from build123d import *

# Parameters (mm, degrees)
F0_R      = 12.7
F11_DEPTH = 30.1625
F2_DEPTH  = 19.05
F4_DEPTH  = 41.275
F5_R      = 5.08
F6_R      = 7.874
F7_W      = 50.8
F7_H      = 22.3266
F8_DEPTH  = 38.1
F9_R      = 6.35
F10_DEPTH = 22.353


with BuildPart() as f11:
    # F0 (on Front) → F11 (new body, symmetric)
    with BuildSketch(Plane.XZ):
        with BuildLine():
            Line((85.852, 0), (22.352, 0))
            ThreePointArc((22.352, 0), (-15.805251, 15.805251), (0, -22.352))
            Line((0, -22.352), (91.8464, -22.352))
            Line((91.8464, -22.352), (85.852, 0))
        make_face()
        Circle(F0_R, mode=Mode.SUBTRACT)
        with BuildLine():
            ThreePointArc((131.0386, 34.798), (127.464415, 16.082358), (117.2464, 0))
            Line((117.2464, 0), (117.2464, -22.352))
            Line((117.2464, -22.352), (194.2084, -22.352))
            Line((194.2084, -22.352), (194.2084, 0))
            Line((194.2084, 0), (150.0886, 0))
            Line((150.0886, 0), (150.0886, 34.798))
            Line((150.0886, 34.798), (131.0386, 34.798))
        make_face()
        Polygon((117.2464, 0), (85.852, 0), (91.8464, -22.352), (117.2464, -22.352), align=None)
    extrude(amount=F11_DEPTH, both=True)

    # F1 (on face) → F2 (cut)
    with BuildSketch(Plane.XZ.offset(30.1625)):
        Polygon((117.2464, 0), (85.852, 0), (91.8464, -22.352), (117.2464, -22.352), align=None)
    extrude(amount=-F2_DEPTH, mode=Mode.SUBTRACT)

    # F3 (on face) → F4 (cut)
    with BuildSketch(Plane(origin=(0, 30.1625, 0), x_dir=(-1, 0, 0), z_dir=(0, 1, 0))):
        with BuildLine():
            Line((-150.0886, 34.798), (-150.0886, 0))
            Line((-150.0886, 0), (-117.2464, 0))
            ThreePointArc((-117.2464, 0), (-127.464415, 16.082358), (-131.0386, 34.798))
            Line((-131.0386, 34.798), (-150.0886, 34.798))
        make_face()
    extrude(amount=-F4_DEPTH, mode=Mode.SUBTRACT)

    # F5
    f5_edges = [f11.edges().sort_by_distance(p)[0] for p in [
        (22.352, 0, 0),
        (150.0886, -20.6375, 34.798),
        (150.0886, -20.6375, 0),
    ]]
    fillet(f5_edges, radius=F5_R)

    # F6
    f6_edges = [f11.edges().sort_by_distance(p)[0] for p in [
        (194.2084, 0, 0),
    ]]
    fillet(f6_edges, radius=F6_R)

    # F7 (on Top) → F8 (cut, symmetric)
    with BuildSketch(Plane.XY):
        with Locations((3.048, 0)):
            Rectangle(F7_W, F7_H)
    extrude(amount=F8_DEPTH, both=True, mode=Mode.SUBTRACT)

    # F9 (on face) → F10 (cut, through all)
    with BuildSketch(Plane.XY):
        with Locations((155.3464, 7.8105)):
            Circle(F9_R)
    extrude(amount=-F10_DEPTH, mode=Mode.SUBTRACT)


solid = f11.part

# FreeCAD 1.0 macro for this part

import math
import FreeCAD as App
import Part
import Sketcher
Q = App.Units.Quantity


def edges_at(feature, points):
    """Names of the edges that pass closest to the given points."""
    edges = feature.Shape.Edges
    near = lambda p: min(range(len(edges)), key=lambda i: edges[i].distToShape(Part.Vertex(*p))[0])
    return sorted({f"Edge{near(p) + 1}" for p in points})


def add_polygon(sketch, points):
    """Adds a closed chain of lines whose ends are joined by coincident constraints."""
    first, n = sketch.GeometryCount, len(points)
    for a, b in zip(points, points[1:] + points[:1]):
        sketch.addGeometry(Part.LineSegment(App.Vector(*a, 0), App.Vector(*b, 0)), False)
    for i in range(n):
        sketch.addConstraint(Sketcher.Constraint("Coincident", first + i, 2, first + (i + 1) % n, 1))

doc = App.newDocument("Part")
params = doc.addObject("Spreadsheet::Sheet", "Params")
for row, (alias, value) in enumerate([
    ("sketch1_diameter", "1 in"),
    ("sketch1_radius", "0.88 in"),
    ("sketch1_width", "0.75 in"),
    ("sketch1_height", "1.37 in"),
    ("sketch1_width2", "7.646 in"),
    ("pad1_length", "2.375 in"),
    ("sketch2_width", "1 in"),
    ("sketch2_height", "0.88 in"),
    ("sketch2_width2", "1.236 in"),
    ("pocket1_length", "0.75 in"),
    ("sketch3_width", "0.75 in"),
    ("sketch3_height", "1.37 in"),
    ("sketch3_width2", "1.293 in"),
    ("pocket2_length", "1.625 in"),
    ("fillet_radius", "0.2 in"),
    ("fillet2_radius", "0.31 in"),
    ("sketch4_width", "2 in"),
    ("sketch4_height", "0.879 in"),
    ("pocket3_length", "3 in"),
    ("sketch5_diameter", "0.5 in"),
], start=1):
    params.set(f"A{row}", alias)
    params.set(f"B{row}", "=" + value)
    params.setAlias(f"B{row}", alias)

body = doc.addObject("PartDesign::Body", "Body")

sketch1 = body.newObject("Sketcher::SketchObject", "Sketch")
sketch1.AttachmentSupport = (doc.getObject("XZ_Plane"), [""])
sketch1.MapMode = "FlatFace"
sketch1.addGeometry(Part.ArcOfCircle(Part.Circle(App.Vector(0, 0, 0), App.Vector(0, 0, 1), 22), math.radians(0), math.radians(270)), False)
sketch1.addGeometry(Part.LineSegment(App.Vector(0, -22, 0), App.Vector(194, -22, 0)), False)
sketch1.addGeometry(Part.LineSegment(App.Vector(194, -22, 0), App.Vector(194, 0, 0)), False)
sketch1.addGeometry(Part.LineSegment(App.Vector(194, 0, 0), App.Vector(150, 0, 0)), False)
sketch1.addGeometry(Part.LineSegment(App.Vector(150, 0, 0), App.Vector(150, 35, 0)), False)
sketch1.addGeometry(Part.LineSegment(App.Vector(150, 35, 0), App.Vector(131, 35, 0)), False)
sketch1.addGeometry(Part.ArcOfCircle(Part.Circle(App.Vector(80, 35, 0), App.Vector(0, 0, 1), 51), math.radians(-43), math.radians(0)), False)
sketch1.addGeometry(Part.LineSegment(App.Vector(117, 0, 0), App.Vector(22, 0, 0)), False)
sketch1.addGeometry(Part.Circle(App.Vector(0, 0, 0), App.Vector(0, 0, 1), 13), False)
sketch1.addConstraint(Sketcher.Constraint("Tangent", 0, 2, 1, 1))
sketch1.addConstraint(Sketcher.Constraint("Coincident", 1, 2, 2, 1))
sketch1.addConstraint(Sketcher.Constraint("Coincident", 2, 2, 3, 1))
sketch1.addConstraint(Sketcher.Constraint("Coincident", 3, 2, 4, 1))
sketch1.addConstraint(Sketcher.Constraint("Coincident", 4, 2, 5, 1))
sketch1.addConstraint(Sketcher.Constraint("Coincident", 5, 2, 6, 2))
sketch1.addConstraint(Sketcher.Constraint("Coincident", 6, 1, 7, 1))
sketch1.addConstraint(Sketcher.Constraint("Coincident", 7, 2, 0, 1))
sketch1.addConstraint(Sketcher.Constraint("Horizontal", 1))
sketch1.addConstraint(Sketcher.Constraint("Vertical", 2))
sketch1.addConstraint(Sketcher.Constraint("Horizontal", 3))
sketch1.addConstraint(Sketcher.Constraint("Vertical", 4))
sketch1.addConstraint(Sketcher.Constraint("Horizontal", 5))
sketch1.addConstraint(Sketcher.Constraint("Horizontal", 7))
sketch1.addConstraint(Sketcher.Constraint("Coincident", 0, 3, -1, 1))
sketch1.addConstraint(Sketcher.Constraint("Coincident", 8, 3, -1, 1))
sketch1.addConstraint(Sketcher.Constraint("PointOnObject", 2, 2, -1))
sketch1.addConstraint(Sketcher.Constraint("PointOnObject", 6, 1, -1))
sketch1.addConstraint(Sketcher.Constraint("Diameter", 8, Q("1 in")))
sketch1.addConstraint(Sketcher.Constraint("Radius", 0, Q("0.88 in")))
sketch1.addConstraint(Sketcher.Constraint("DistanceX", 5, 2, 5, 1, Q("0.75 in")))
sketch1.addConstraint(Sketcher.Constraint("DistanceY", 4, 1, 4, 2, Q("1.37 in")))
sketch1.addConstraint(Sketcher.Constraint("DistanceX", 1, 1, 1, 2, Q("7.646 in")))
sketch1.addConstraint(Sketcher.Constraint("DistanceX", 3, 2, 3, 1, Q("1.737 in")))
sketch1.addConstraint(Sketcher.Constraint("DistanceX", 7, 2, 7, 1, Q("3.736 in")))
sketch1.addConstraint(Sketcher.Constraint("Radius", 6, Q("50.800006 mm")))
sketch1.setExpression("Constraints[18]", "Params.sketch1_diameter")
sketch1.setExpression("Constraints[19]", "Params.sketch1_radius")
sketch1.setExpression("Constraints[20]", "Params.sketch1_width")
sketch1.setExpression("Constraints[21]", "Params.sketch1_height")
sketch1.setExpression("Constraints[22]", "Params.sketch1_width2")
pad1 = body.newObject("PartDesign::Pad", "Pad")
pad1.Profile = sketch1
pad1.setExpression("Length", "Params.pad1_length")
pad1.Midplane = True

sketch2 = body.newObject("Sketcher::SketchObject", "Sketch001")
sketch2.AttachmentSupport = (doc.getObject("XZ_Plane"), [""])
sketch2.MapMode = "FlatFace"
sketch2.AttachmentOffset = App.Placement(App.Vector(0, 0, 1.1875 * 25.4), App.Rotation())
add_polygon(sketch2, [(117, 0), (86, 0), (92, -22), (117, -22)])
sketch2.addConstraint(Sketcher.Constraint("Horizontal", 0))
sketch2.addConstraint(Sketcher.Constraint("Horizontal", 2))
sketch2.addConstraint(Sketcher.Constraint("Vertical", 3))
sketch2.addConstraint(Sketcher.Constraint("PointOnObject", 0, 2, -1))
sketch2.addConstraint(Sketcher.Constraint("DistanceX", 2, 1, 2, 2, Q("1 in")))
sketch2.addConstraint(Sketcher.Constraint("DistanceY", 3, 1, 3, 2, Q("0.88 in")))
sketch2.addConstraint(Sketcher.Constraint("DistanceX", 0, 2, 0, 1, Q("1.236 in")))
sketch2.addConstraint(Sketcher.Constraint("DistanceX", -1, 1, 0, 2, Q("3.38 in")))
sketch2.setExpression("Constraints[8]", "Params.sketch2_width")
sketch2.setExpression("Constraints[9]", "Params.sketch2_height")
sketch2.setExpression("Constraints[10]", "Params.sketch2_width2")
pocket1 = body.newObject("PartDesign::Pocket", "Pocket")
pocket1.Profile = sketch2
pocket1.setExpression("Length", "Params.pocket1_length")

sketch3 = body.newObject("Sketcher::SketchObject", "Sketch002")
sketch3.AttachmentSupport = (doc.getObject("XZ_Plane"), [""])
sketch3.MapMode = "FlatFace"
sketch3.AttachmentOffset = App.Placement(App.Vector(0, 0, -1.1875 * 25.4), App.Rotation())
sketch3.addGeometry(Part.LineSegment(App.Vector(150, 35, 0), App.Vector(150, 0, 0)), False)
sketch3.addGeometry(Part.LineSegment(App.Vector(150, 0, 0), App.Vector(117, 0, 0)), False)
sketch3.addGeometry(Part.ArcOfCircle(Part.Circle(App.Vector(80, 35, 0), App.Vector(0, 0, 1), 51), math.radians(-43), math.radians(0)), False)
sketch3.addGeometry(Part.LineSegment(App.Vector(131, 35, 0), App.Vector(150, 35, 0)), False)
sketch3.addConstraint(Sketcher.Constraint("Coincident", 0, 2, 1, 1))
sketch3.addConstraint(Sketcher.Constraint("Coincident", 1, 2, 2, 1))
sketch3.addConstraint(Sketcher.Constraint("Coincident", 2, 2, 3, 1))
sketch3.addConstraint(Sketcher.Constraint("Coincident", 3, 2, 0, 1))
sketch3.addConstraint(Sketcher.Constraint("Vertical", 0))
sketch3.addConstraint(Sketcher.Constraint("Horizontal", 1))
sketch3.addConstraint(Sketcher.Constraint("Horizontal", 3))
sketch3.addConstraint(Sketcher.Constraint("PointOnObject", 0, 2, -1))
sketch3.addConstraint(Sketcher.Constraint("DistanceX", 3, 1, 3, 2, Q("0.75 in")))
sketch3.addConstraint(Sketcher.Constraint("DistanceY", 0, 2, 0, 1, Q("1.37 in")))
sketch3.addConstraint(Sketcher.Constraint("DistanceX", 1, 2, 1, 1, Q("1.293 in")))
sketch3.addConstraint(Sketcher.Constraint("DistanceX", -1, 1, 0, 2, Q("5.909 in")))
sketch3.addConstraint(Sketcher.Constraint("Radius", 2, Q("50.800006 mm")))
sketch3.setExpression("Constraints[8]", "Params.sketch3_width")
sketch3.setExpression("Constraints[9]", "Params.sketch3_height")
sketch3.setExpression("Constraints[10]", "Params.sketch3_width2")
pocket2 = body.newObject("PartDesign::Pocket", "Pocket001")
pocket2.Profile = sketch3
pocket2.setExpression("Length", "Params.pocket2_length")
pocket2.Reversed = True
doc.recompute()

fillet = body.newObject("PartDesign::Fillet", "Fillet")
fillet.Base = (pocket2, edges_at(pocket2, [(22.352, 0, 0), (150.089, -20.637, 34.798), (150.089, -20.637, 0)]))
fillet.setExpression("Radius", "Params.fillet_radius")
doc.recompute()

fillet2 = body.newObject("PartDesign::Fillet", "Fillet001")
fillet2.Base = (fillet, edges_at(fillet, [(194.208, 0, 0)]))
fillet2.setExpression("Radius", "Params.fillet2_radius")

sketch4 = body.newObject("Sketcher::SketchObject", "Sketch003")
sketch4.AttachmentSupport = (doc.getObject("XY_Plane"), [""])
sketch4.MapMode = "FlatFace"
add_polygon(sketch4, [(-22, 11), (-22, -11), (28, -11), (28, 11)])
sketch4.addConstraint(Sketcher.Constraint("Vertical", 0))
sketch4.addConstraint(Sketcher.Constraint("Horizontal", 1))
sketch4.addConstraint(Sketcher.Constraint("Vertical", 2))
sketch4.addConstraint(Sketcher.Constraint("Horizontal", 3))
sketch4.addConstraint(Sketcher.Constraint("DistanceX", 1, 1, 1, 2, Q("2 in")))
sketch4.addConstraint(Sketcher.Constraint("DistanceY", 0, 2, 0, 1, Q("0.879 in")))
sketch4.addConstraint(Sketcher.Constraint("DistanceX", 0, 2, -1, 1, Q("0.88 in")))
sketch4.addConstraint(Sketcher.Constraint("DistanceY", 0, 2, -1, 1, Q("0.4395 in")))
sketch4.setExpression("Constraints[8]", "Params.sketch4_width")
sketch4.setExpression("Constraints[9]", "Params.sketch4_height")
pocket3 = body.newObject("PartDesign::Pocket", "Pocket002")
pocket3.Profile = sketch4
pocket3.setExpression("Length", "Params.pocket3_length")
pocket3.Midplane = True

sketch5 = body.newObject("Sketcher::SketchObject", "Sketch004")
sketch5.AttachmentSupport = (doc.getObject("XY_Plane"), [""])
sketch5.MapMode = "FlatFace"
sketch5.addGeometry(Part.Circle(App.Vector(155, 8, 0), App.Vector(0, 0, 1), 6), False)
sketch5.addConstraint(Sketcher.Constraint("Diameter", 0, Q("0.5 in")))
sketch5.addConstraint(Sketcher.Constraint("DistanceX", -1, 1, 0, 3, Q("6.116 in")))
sketch5.addConstraint(Sketcher.Constraint("DistanceY", -1, 1, 0, 3, Q("0.3075 in")))
sketch5.setExpression("Constraints[0]", "Params.sketch5_diameter")
pocket4 = body.newObject("PartDesign::Pocket", "Pocket003")
pocket4.Profile = sketch5
pocket4.Type = "ThroughAll"

doc.recompute()
